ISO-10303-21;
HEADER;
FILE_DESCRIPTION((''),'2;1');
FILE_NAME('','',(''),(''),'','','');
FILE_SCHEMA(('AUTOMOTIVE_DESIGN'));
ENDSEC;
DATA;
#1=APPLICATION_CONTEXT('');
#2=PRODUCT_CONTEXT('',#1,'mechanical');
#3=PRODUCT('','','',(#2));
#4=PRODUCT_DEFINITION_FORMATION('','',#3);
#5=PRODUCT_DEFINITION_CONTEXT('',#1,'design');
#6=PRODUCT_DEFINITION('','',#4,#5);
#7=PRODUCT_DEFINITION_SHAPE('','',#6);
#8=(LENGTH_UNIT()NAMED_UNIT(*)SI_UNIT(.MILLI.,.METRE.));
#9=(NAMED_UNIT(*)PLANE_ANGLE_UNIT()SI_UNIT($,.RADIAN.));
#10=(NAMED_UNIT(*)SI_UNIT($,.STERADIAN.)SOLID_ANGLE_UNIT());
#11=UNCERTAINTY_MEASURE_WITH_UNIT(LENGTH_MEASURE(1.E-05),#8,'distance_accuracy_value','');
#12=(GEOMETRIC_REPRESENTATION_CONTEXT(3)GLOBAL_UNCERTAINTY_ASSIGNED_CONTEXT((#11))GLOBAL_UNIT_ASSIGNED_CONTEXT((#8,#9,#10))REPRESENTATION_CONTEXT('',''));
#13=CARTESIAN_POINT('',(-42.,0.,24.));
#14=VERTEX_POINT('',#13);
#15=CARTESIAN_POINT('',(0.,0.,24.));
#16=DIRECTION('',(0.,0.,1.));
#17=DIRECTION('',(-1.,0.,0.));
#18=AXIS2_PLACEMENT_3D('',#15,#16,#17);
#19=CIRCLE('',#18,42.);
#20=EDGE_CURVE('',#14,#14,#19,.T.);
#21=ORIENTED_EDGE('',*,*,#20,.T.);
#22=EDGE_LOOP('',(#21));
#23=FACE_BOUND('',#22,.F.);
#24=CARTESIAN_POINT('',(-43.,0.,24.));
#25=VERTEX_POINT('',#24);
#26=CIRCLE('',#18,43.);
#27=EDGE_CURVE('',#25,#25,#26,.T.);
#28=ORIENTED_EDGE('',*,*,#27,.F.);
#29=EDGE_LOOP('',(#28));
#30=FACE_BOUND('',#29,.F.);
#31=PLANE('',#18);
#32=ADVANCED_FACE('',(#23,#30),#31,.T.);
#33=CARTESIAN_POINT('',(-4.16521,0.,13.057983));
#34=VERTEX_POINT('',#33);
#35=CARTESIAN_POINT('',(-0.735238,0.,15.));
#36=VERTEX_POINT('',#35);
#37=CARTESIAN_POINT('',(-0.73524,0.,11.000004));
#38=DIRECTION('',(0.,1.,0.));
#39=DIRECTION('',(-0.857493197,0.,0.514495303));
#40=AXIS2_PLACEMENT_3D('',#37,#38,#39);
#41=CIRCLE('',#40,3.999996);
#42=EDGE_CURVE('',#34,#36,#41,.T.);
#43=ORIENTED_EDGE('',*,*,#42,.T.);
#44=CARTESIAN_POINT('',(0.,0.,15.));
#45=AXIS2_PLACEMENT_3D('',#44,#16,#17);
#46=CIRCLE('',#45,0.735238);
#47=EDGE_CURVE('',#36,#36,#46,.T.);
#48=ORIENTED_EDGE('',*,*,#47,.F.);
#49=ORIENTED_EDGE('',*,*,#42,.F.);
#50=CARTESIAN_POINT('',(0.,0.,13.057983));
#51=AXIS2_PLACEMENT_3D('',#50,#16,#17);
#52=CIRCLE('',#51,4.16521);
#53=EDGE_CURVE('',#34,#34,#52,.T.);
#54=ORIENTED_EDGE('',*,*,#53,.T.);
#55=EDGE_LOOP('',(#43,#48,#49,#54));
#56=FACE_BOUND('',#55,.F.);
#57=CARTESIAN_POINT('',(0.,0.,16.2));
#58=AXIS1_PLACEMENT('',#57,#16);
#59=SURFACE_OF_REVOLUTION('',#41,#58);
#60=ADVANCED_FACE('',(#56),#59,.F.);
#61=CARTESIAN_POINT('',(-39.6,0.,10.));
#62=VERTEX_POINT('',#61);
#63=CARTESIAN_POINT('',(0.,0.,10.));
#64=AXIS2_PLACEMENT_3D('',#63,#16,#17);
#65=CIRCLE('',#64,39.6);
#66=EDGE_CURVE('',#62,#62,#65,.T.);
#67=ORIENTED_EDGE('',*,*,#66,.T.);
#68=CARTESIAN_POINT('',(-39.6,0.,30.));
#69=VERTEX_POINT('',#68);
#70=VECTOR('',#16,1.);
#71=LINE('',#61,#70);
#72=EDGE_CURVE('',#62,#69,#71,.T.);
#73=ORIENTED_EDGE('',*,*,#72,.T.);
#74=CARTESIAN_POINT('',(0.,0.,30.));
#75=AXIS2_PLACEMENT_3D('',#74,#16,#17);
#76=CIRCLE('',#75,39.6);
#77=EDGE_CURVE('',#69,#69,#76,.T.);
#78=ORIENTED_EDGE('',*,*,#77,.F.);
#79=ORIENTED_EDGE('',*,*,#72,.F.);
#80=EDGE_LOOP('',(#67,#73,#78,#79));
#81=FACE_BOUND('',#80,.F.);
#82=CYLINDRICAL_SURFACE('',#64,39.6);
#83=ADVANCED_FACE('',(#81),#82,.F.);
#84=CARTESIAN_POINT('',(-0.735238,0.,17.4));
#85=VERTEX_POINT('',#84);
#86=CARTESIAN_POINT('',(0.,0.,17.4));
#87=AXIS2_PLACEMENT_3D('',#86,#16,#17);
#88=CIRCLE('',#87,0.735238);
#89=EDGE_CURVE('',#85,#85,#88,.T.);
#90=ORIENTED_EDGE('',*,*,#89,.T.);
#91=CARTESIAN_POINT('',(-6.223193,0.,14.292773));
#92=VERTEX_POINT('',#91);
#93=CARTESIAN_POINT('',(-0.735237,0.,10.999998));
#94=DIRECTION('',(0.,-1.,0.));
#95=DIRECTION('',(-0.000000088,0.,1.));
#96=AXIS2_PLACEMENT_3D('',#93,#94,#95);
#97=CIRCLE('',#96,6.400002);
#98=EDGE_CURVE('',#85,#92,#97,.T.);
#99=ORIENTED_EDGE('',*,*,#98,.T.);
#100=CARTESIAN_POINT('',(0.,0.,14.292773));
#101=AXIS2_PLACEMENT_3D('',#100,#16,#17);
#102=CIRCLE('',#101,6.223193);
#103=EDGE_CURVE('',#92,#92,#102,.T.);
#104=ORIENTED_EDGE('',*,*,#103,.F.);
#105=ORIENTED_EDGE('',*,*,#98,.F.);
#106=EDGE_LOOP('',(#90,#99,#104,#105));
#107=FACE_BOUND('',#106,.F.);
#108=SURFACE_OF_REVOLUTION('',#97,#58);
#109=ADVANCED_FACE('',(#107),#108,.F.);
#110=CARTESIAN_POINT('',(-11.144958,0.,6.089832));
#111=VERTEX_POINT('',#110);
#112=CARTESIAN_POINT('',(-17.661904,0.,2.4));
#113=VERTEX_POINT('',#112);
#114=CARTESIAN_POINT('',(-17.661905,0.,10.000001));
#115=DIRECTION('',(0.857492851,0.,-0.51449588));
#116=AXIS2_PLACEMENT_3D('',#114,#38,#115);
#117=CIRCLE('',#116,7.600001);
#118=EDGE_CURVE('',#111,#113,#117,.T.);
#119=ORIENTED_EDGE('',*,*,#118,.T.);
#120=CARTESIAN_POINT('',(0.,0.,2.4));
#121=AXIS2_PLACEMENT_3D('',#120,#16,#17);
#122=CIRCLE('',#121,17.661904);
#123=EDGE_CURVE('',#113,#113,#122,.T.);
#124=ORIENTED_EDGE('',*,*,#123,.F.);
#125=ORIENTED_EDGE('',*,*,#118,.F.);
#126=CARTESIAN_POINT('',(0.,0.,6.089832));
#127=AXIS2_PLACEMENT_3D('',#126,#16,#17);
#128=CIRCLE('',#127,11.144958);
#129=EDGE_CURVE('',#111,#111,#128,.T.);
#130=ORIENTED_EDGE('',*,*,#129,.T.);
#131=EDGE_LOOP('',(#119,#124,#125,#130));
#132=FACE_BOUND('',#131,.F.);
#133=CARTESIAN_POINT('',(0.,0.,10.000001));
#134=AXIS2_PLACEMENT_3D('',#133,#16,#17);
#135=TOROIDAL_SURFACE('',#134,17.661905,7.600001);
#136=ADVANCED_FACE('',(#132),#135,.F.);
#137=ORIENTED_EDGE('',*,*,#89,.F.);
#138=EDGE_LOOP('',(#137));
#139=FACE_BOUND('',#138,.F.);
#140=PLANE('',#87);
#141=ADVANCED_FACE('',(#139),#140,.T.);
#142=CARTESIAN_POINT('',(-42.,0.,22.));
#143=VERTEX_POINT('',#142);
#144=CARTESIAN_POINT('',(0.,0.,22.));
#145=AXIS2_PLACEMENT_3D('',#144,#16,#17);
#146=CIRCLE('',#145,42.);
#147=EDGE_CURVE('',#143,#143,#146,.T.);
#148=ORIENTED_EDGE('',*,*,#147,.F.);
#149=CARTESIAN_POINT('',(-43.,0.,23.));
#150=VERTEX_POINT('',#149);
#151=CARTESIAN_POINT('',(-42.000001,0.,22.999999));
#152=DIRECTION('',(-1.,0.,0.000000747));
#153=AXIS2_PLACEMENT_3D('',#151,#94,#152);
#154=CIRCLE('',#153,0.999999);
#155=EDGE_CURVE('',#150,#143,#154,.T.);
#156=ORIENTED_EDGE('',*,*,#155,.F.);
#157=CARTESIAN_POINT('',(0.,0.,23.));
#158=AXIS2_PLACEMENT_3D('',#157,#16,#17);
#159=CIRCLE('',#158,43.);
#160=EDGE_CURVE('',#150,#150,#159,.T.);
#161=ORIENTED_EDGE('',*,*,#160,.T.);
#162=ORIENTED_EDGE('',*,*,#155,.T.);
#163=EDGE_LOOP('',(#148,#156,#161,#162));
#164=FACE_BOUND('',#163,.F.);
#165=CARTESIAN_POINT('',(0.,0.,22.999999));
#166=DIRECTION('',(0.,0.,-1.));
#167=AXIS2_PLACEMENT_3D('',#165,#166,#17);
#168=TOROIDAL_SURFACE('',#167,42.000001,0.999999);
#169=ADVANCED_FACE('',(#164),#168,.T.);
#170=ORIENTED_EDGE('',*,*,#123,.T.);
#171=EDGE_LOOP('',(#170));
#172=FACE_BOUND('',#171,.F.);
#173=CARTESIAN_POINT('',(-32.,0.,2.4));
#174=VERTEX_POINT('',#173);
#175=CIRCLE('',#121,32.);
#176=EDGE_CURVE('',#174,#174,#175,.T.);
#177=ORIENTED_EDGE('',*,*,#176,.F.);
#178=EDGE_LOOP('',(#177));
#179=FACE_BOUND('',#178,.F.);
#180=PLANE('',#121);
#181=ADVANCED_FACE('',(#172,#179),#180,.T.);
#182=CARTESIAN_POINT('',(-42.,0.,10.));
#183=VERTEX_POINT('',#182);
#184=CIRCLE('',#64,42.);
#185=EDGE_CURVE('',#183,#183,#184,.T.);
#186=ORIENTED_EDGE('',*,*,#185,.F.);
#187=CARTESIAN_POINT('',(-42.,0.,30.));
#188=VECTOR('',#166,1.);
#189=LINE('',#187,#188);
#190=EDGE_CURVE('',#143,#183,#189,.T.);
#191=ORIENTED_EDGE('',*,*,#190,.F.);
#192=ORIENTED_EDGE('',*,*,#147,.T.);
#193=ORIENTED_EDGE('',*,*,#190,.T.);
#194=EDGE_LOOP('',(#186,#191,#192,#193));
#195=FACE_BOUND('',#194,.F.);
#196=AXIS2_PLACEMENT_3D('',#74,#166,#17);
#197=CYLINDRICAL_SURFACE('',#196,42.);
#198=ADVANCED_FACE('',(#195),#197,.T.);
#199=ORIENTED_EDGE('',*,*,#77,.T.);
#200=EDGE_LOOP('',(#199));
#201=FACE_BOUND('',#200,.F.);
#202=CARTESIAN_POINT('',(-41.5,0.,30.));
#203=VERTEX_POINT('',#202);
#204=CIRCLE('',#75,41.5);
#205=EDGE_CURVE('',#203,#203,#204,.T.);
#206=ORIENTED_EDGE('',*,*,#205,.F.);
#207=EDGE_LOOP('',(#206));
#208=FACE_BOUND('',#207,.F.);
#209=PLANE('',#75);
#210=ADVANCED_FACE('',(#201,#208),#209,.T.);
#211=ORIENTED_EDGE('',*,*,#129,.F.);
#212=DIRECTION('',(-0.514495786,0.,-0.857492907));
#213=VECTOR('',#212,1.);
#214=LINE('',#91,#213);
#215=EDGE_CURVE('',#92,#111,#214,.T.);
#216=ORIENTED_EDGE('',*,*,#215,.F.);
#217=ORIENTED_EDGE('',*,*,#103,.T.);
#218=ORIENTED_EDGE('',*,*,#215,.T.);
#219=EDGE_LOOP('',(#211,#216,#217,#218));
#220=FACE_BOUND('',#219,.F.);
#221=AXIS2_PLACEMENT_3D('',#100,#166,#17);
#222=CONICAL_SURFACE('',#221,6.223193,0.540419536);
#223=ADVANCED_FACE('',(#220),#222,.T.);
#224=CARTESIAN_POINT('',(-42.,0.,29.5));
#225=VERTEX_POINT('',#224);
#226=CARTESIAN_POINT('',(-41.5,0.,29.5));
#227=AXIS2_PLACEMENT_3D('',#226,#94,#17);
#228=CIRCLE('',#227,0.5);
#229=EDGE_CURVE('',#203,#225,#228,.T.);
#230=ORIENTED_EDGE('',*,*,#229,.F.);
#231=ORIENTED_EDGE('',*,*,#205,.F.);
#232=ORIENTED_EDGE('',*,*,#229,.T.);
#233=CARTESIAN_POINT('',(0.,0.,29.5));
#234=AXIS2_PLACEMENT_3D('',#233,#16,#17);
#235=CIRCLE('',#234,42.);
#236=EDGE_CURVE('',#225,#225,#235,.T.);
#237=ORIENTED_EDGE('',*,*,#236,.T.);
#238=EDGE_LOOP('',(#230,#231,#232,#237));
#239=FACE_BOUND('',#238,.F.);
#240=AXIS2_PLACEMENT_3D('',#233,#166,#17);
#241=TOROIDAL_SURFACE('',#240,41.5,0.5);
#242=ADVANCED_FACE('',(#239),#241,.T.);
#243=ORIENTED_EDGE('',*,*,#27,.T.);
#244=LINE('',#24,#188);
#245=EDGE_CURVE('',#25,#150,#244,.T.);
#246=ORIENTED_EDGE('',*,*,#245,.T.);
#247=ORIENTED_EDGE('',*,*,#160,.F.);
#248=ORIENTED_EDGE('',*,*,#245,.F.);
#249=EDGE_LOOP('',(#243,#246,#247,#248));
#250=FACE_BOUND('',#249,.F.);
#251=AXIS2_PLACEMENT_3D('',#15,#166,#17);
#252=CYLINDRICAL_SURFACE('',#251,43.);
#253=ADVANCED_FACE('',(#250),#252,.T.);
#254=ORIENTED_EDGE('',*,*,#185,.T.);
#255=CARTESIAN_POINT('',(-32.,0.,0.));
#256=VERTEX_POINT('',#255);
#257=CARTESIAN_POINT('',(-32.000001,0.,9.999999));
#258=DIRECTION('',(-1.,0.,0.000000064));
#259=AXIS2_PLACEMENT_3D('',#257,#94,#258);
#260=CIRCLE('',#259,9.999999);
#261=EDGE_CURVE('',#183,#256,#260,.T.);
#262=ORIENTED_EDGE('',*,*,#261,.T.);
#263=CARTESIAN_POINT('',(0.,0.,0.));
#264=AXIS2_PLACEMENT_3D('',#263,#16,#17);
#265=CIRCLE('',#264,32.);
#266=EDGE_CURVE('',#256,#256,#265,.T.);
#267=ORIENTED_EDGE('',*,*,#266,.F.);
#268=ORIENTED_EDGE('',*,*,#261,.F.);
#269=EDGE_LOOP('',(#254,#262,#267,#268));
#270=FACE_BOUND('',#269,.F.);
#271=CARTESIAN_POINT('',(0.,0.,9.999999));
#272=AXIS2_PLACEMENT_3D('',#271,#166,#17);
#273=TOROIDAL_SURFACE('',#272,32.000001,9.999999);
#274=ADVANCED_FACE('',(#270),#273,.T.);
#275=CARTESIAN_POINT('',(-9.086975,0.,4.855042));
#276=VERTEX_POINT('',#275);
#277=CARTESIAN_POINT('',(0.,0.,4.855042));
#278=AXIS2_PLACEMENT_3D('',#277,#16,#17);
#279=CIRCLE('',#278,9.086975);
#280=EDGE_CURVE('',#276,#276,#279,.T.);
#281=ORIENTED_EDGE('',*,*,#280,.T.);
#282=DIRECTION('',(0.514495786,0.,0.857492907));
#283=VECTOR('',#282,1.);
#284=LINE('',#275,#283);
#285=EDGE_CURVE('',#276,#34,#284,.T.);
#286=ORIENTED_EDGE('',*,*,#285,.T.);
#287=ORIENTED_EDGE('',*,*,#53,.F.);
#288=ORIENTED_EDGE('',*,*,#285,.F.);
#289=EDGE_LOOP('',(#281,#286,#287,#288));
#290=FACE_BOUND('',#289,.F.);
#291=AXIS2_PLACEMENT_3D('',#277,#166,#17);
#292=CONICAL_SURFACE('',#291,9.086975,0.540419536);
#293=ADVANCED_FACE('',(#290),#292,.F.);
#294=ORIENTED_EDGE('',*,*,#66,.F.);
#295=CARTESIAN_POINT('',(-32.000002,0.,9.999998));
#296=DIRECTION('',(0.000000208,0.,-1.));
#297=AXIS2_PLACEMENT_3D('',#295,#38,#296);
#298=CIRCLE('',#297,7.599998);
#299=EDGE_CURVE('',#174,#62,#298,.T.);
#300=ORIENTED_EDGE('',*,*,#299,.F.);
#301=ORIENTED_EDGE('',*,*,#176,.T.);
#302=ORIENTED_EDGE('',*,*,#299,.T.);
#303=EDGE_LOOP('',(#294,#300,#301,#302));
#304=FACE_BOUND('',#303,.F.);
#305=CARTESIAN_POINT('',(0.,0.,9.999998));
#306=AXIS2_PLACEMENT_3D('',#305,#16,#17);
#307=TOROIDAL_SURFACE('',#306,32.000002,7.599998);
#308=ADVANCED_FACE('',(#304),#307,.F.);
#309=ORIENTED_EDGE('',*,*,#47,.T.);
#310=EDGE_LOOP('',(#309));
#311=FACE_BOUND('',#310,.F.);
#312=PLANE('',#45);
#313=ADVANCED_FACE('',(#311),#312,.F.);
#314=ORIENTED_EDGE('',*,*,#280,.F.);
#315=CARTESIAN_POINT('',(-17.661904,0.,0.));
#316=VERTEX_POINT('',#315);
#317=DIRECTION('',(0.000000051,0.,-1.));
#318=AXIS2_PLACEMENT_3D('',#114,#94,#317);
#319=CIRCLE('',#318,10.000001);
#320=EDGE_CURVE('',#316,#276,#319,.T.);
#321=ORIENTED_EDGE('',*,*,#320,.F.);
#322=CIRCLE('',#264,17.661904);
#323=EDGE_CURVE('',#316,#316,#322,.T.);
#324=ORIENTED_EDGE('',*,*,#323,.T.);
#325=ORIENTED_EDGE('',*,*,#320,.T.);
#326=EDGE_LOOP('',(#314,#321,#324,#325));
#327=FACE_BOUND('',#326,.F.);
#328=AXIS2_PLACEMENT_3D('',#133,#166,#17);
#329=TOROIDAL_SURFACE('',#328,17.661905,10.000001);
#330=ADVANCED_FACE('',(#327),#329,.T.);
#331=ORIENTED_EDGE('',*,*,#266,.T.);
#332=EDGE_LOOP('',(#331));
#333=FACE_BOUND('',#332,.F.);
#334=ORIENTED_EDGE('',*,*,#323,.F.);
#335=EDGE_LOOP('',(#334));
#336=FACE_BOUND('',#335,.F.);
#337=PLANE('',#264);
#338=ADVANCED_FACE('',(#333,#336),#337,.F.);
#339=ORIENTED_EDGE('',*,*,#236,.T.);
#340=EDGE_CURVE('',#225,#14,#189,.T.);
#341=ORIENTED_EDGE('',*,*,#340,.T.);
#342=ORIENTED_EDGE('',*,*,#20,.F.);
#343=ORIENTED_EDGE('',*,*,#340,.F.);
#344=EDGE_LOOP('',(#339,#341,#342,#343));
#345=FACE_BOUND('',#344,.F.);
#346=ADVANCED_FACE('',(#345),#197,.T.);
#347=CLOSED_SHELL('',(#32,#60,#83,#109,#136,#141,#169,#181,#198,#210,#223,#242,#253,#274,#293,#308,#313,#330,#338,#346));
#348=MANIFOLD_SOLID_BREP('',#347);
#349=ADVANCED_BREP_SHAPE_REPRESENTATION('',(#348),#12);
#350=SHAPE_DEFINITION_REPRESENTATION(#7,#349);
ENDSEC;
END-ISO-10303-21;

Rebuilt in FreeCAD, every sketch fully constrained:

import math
import FreeCAD as App
import Part
import Sketcher

V = App.Vector
Q = App.Units.Quantity


def edges_at(feature, points):
    """Names of the edges that pass closest to the given points."""
    edges = feature.Shape.Edges
    near = lambda p: min(range(len(edges)), key=lambda i: edges[i].distToShape(Part.Vertex(*p))[0])
    return sorted({f"Edge{near(p) + 1}" for p in points})

doc = App.newDocument("Part")
params = doc.addObject("Spreadsheet::Sheet", "Params")
for row, (alias, value) in enumerate([
    ("sketch1_radius", "0.999999 mm"),
    ("sketch1_radius2", "9.999999 mm"),
    ("sketch1_radius3", "6.400002 mm"),
    ("sketch1_radius4", "7.600001 mm"),
    ("sketch1_height", "20 mm"),
    ("revolution_angle", "360 deg"),
    ("fillet_radius", "0.5 mm"),
], start=1):
    params.set(f"A{row}", alias)
    params.set(f"B{row}", "=" + value)
    params.setAlias(f"B{row}", alias)

body = doc.addObject("PartDesign::Body", "Body")

# Sketch on XZ plane
sketch1 = body.newObject("Sketcher::SketchObject", "Sketch")
sketch1.AttachmentSupport = (doc.getObject("XZ_Plane"), [""])
sketch1.MapMode = "FlatFace"
sketch1.addGeometry(Part.LineSegment(V(-0.7, 15, 0), V(0, 15, 0)), False)
sketch1.addGeometry(Part.LineSegment(V(0, 15, 0), V(0, 17.4, 0)), False)
sketch1.addGeometry(Part.LineSegment(V(0, 17.4, 0), V(-0.7, 17.4, 0)), False)
sketch1.addGeometry(Part.ArcOfCircle(Part.Circle(V(-0.7, 11, 0), V(0, 0, 1), 6.4), math.radians(90), math.radians(149)), False)
sketch1.addGeometry(Part.LineSegment(V(-6.2, 14.3, 0), V(-11.1, 6.1, 0)), False)
sketch1.addGeometry(Part.ArcOfCircle(Part.Circle(V(-17.7, 10, 0), V(0, 0, 1), 7.6), math.radians(-90), math.radians(-31)), False)
sketch1.addGeometry(Part.LineSegment(V(-17.7, 2.4, 0), V(-32, 2.4, 0)), False)
sketch1.addGeometry(Part.ArcOfCircle(Part.Circle(V(-32, 10, 0), V(0, 0, 1), 7.6), math.radians(180), math.radians(270)), False)
sketch1.addGeometry(Part.LineSegment(V(-39.6, 10, 0), V(-39.6, 30, 0)), False)
sketch1.addGeometry(Part.LineSegment(V(-39.6, 30, 0), V(-42, 30, 0)), False)
sketch1.addGeometry(Part.LineSegment(V(-42, 30, 0), V(-42, 24, 0)), False)
sketch1.addGeometry(Part.LineSegment(V(-42, 24, 0), V(-43, 24, 0)), False)
sketch1.addGeometry(Part.LineSegment(V(-43, 24, 0), V(-43, 23, 0)), False)
sketch1.addGeometry(Part.ArcOfCircle(Part.Circle(V(-42, 23, 0), V(0, 0, 1), 1), math.radians(180), math.radians(270)), False)
sketch1.addGeometry(Part.LineSegment(V(-42, 22, 0), V(-42, 10, 0)), False)
sketch1.addGeometry(Part.ArcOfCircle(Part.Circle(V(-32, 10, 0), V(0, 0, 1), 10), math.radians(180), math.radians(270)), False)
sketch1.addGeometry(Part.LineSegment(V(-32, 0, 0), V(-17.7, 0, 0)), False)
sketch1.addGeometry(Part.ArcOfCircle(Part.Circle(V(-17.7, 10, 0), V(0, 0, 1), 10), math.radians(-90), math.radians(-31)), False)
sketch1.addGeometry(Part.LineSegment(V(-9.1, 4.9, 0), V(-4.2, 13.1, 0)), False)
sketch1.addGeometry(Part.ArcOfCircle(Part.Circle(V(-0.7, 11, 0), V(0, 0, 1), 4), math.radians(90), math.radians(149)), False)
sketch1.addConstraint(Sketcher.Constraint("Coincident", 0, 2, 1, 1))
sketch1.addConstraint(Sketcher.Constraint("Coincident", 1, 2, 2, 1))
sketch1.addConstraint(Sketcher.Constraint("Tangent", 2, 2, 3, 1))
sketch1.addConstraint(Sketcher.Constraint("Tangent", 3, 2, 4, 1))
sketch1.addConstraint(Sketcher.Constraint("Tangent", 4, 2, 5, 2))
sketch1.addConstraint(Sketcher.Constraint("Tangent", 5, 1, 6, 1))
sketch1.addConstraint(Sketcher.Constraint("Tangent", 6, 2, 7, 2))
sketch1.addConstraint(Sketcher.Constraint("Tangent", 7, 1, 8, 1))
sketch1.addConstraint(Sketcher.Constraint("Coincident", 8, 2, 9, 1))
sketch1.addConstraint(Sketcher.Constraint("Coincident", 9, 2, 10, 1))
sketch1.addConstraint(Sketcher.Constraint("Coincident", 10, 2, 11, 1))
sketch1.addConstraint(Sketcher.Constraint("Coincident", 11, 2, 12, 1))
sketch1.addConstraint(Sketcher.Constraint("Tangent", 12, 2, 13, 1))
sketch1.addConstraint(Sketcher.Constraint("Coincident", 13, 2, 14, 1))
sketch1.addConstraint(Sketcher.Constraint("Tangent", 14, 2, 15, 1))
sketch1.addConstraint(Sketcher.Constraint("Tangent", 15, 2, 16, 1))
sketch1.addConstraint(Sketcher.Constraint("Tangent", 16, 2, 17, 1))
sketch1.addConstraint(Sketcher.Constraint("Tangent", 17, 2, 18, 1))
sketch1.addConstraint(Sketcher.Constraint("Tangent", 18, 2, 19, 2))
sketch1.addConstraint(Sketcher.Constraint("Tangent", 19, 1, 0, 1))
sketch1.addConstraint(Sketcher.Constraint("Horizontal", 0))
sketch1.addConstraint(Sketcher.Constraint("Vertical", 1))
sketch1.addConstraint(Sketcher.Constraint("Horizontal", 2))
sketch1.addConstraint(Sketcher.Constraint("Horizontal", 6))
sketch1.addConstraint(Sketcher.Constraint("Vertical", 8))
sketch1.addConstraint(Sketcher.Constraint("Horizontal", 9))
sketch1.addConstraint(Sketcher.Constraint("Vertical", 10))
sketch1.addConstraint(Sketcher.Constraint("Horizontal", 11))
sketch1.addConstraint(Sketcher.Constraint("Vertical", 12))
sketch1.addConstraint(Sketcher.Constraint("Vertical", 14))
sketch1.addConstraint(Sketcher.Constraint("Horizontal", 16))
sketch1.addConstraint(Sketcher.Constraint("Coincident", 15, 3, 7, 3))
sketch1.addConstraint(Sketcher.Constraint("Coincident", 17, 3, 5, 3))
sketch1.addConstraint(Sketcher.Constraint("Coincident", 19, 3, 3, 3))
sketch1.addConstraint(Sketcher.Constraint("Equal", 15, 17))
sketch1.addConstraint(Sketcher.Constraint("PointOnObject", 0, 2, -2))
sketch1.addConstraint(Sketcher.Constraint("PointOnObject", 15, 2, -1))
sketch1.addConstraint(Sketcher.Constraint("Parallel", 4, 18))
sketch1.addConstraint(Sketcher.Constraint("Vertical", 13, 3, 9, 2))
sketch1.addConstraint(Sketcher.Constraint("Vertical", 10, 2, 13, 2))
sketch1.addConstraint(Sketcher.Constraint("Equal", 11, 12))
sketch1.addConstraint(Sketcher.Constraint("Radius", 13, Q("0.999999 mm")))
sketch1.addConstraint(Sketcher.Constraint("Radius", 15, Q("9.999999 mm")))
sketch1.addConstraint(Sketcher.Constraint("Radius", 3, Q("6.400002 mm")))
sketch1.addConstraint(Sketcher.Constraint("Radius", 5, Q("7.600001 mm")))
sketch1.addConstraint(Sketcher.Constraint("DistanceY", 8, 1, 8, 2, Q("20 mm")))
sketch1.addConstraint(Sketcher.Constraint("DistanceY", 10, 2, 10, 1, Q("6 mm")))
sketch1.addConstraint(Sketcher.Constraint("DistanceY", -1, 1, 3, 3, Q("10.999998 mm")))
sketch1.addConstraint(Sketcher.Constraint("DistanceX", 7, 3, -1, 1, Q("32.000002 mm")))
sketch1.addConstraint(Sketcher.Constraint("Distance", 4, Q("9.566191 mm")))
sketch1.addConstraint(Sketcher.Constraint("DistanceX", 0, 1, 0, 2, Q("0.735238 mm")))
sketch1.setExpression("Constraints[41]", "Params.sketch1_radius")
sketch1.setExpression("Constraints[42]", "Params.sketch1_radius2")
sketch1.setExpression("Constraints[43]", "Params.sketch1_radius3")
sketch1.setExpression("Constraints[44]", "Params.sketch1_radius4")
sketch1.setExpression("Constraints[45]", "Params.sketch1_height")
revolution = body.newObject("PartDesign::Revolution", "Revolution")
revolution.Profile = sketch1
revolution.ReferenceAxis = (sketch1, ["V_Axis"])
revolution.setExpression("Angle", "Params.revolution_angle")
doc.recompute()

fillet = body.newObject("PartDesign::Fillet", "Fillet")
fillet.Base = (revolution, edges_at(revolution, [(42, 0, 30)]))
fillet.setExpression("Radius", "Params.fillet_radius")

doc.recompute()
